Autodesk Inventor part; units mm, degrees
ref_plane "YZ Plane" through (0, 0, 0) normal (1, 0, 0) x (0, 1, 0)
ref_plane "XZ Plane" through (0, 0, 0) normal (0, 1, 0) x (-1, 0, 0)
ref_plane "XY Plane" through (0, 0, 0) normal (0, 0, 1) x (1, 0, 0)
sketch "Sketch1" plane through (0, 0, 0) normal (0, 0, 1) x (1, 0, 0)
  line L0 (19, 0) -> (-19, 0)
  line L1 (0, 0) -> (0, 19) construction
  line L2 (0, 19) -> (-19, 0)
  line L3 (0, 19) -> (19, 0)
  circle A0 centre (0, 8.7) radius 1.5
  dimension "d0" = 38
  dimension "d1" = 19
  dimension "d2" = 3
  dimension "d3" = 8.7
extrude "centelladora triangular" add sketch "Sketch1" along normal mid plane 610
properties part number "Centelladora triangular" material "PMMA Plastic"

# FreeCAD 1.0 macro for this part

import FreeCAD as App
import Part
import Sketcher

V = App.Vector
Q = App.Units.Quantity


def add_polygon(sketch, points):
    """Adds a closed chain of lines whose ends are joined by coincident constraints."""
    first, n = sketch.GeometryCount, len(points)
    for a, b in zip(points, points[1:] + points[:1]):
        sketch.addGeometry(Part.LineSegment(App.Vector(*a, 0), App.Vector(*b, 0)), False)
    for i in range(n):
        sketch.addConstraint(Sketcher.Constraint("Coincident", first + i, 2, first + (i + 1) % n, 1))

doc = App.newDocument("Part")
body = doc.addObject("PartDesign::Body", "Body")

sketch1 = body.newObject("Sketcher::SketchObject", "Sketch")
sketch1.AttachmentSupport = (doc.getObject("XY_Plane"), [""])
sketch1.MapMode = "FlatFace"
add_polygon(sketch1, [(-19, 0), (19, 0), (0, 19)])
sketch1.addGeometry(Part.Circle(V(0, 8.7, 0), V(0, 0, 1), 1.5), False)
sketch1.addConstraint([
    Sketcher.Constraint("Horizontal", 0),
    Sketcher.Constraint("Symmetric", 0, 2, 2, 2, -1, 1),
    Sketcher.Constraint("PointOnObject", 3, 3, -2),
    Sketcher.Constraint("PointOnObject", 1, 2, -2),
    Sketcher.Constraint("Perpendicular", 1, 2),
    Sketcher.Constraint("Diameter", 3, Q("3 mm")),
    Sketcher.Constraint("DistanceX", 0, 1, 0, 2, Q("38 mm")),
    Sketcher.Constraint("DistanceY", -1, 1, 3, 3, Q("8.7 mm")),
])
pad1 = body.newObject("PartDesign::Pad", "Pad")
pad1.Profile = sketch1
pad1.Length = 610
pad1.Midplane = True

doc.recompute()
